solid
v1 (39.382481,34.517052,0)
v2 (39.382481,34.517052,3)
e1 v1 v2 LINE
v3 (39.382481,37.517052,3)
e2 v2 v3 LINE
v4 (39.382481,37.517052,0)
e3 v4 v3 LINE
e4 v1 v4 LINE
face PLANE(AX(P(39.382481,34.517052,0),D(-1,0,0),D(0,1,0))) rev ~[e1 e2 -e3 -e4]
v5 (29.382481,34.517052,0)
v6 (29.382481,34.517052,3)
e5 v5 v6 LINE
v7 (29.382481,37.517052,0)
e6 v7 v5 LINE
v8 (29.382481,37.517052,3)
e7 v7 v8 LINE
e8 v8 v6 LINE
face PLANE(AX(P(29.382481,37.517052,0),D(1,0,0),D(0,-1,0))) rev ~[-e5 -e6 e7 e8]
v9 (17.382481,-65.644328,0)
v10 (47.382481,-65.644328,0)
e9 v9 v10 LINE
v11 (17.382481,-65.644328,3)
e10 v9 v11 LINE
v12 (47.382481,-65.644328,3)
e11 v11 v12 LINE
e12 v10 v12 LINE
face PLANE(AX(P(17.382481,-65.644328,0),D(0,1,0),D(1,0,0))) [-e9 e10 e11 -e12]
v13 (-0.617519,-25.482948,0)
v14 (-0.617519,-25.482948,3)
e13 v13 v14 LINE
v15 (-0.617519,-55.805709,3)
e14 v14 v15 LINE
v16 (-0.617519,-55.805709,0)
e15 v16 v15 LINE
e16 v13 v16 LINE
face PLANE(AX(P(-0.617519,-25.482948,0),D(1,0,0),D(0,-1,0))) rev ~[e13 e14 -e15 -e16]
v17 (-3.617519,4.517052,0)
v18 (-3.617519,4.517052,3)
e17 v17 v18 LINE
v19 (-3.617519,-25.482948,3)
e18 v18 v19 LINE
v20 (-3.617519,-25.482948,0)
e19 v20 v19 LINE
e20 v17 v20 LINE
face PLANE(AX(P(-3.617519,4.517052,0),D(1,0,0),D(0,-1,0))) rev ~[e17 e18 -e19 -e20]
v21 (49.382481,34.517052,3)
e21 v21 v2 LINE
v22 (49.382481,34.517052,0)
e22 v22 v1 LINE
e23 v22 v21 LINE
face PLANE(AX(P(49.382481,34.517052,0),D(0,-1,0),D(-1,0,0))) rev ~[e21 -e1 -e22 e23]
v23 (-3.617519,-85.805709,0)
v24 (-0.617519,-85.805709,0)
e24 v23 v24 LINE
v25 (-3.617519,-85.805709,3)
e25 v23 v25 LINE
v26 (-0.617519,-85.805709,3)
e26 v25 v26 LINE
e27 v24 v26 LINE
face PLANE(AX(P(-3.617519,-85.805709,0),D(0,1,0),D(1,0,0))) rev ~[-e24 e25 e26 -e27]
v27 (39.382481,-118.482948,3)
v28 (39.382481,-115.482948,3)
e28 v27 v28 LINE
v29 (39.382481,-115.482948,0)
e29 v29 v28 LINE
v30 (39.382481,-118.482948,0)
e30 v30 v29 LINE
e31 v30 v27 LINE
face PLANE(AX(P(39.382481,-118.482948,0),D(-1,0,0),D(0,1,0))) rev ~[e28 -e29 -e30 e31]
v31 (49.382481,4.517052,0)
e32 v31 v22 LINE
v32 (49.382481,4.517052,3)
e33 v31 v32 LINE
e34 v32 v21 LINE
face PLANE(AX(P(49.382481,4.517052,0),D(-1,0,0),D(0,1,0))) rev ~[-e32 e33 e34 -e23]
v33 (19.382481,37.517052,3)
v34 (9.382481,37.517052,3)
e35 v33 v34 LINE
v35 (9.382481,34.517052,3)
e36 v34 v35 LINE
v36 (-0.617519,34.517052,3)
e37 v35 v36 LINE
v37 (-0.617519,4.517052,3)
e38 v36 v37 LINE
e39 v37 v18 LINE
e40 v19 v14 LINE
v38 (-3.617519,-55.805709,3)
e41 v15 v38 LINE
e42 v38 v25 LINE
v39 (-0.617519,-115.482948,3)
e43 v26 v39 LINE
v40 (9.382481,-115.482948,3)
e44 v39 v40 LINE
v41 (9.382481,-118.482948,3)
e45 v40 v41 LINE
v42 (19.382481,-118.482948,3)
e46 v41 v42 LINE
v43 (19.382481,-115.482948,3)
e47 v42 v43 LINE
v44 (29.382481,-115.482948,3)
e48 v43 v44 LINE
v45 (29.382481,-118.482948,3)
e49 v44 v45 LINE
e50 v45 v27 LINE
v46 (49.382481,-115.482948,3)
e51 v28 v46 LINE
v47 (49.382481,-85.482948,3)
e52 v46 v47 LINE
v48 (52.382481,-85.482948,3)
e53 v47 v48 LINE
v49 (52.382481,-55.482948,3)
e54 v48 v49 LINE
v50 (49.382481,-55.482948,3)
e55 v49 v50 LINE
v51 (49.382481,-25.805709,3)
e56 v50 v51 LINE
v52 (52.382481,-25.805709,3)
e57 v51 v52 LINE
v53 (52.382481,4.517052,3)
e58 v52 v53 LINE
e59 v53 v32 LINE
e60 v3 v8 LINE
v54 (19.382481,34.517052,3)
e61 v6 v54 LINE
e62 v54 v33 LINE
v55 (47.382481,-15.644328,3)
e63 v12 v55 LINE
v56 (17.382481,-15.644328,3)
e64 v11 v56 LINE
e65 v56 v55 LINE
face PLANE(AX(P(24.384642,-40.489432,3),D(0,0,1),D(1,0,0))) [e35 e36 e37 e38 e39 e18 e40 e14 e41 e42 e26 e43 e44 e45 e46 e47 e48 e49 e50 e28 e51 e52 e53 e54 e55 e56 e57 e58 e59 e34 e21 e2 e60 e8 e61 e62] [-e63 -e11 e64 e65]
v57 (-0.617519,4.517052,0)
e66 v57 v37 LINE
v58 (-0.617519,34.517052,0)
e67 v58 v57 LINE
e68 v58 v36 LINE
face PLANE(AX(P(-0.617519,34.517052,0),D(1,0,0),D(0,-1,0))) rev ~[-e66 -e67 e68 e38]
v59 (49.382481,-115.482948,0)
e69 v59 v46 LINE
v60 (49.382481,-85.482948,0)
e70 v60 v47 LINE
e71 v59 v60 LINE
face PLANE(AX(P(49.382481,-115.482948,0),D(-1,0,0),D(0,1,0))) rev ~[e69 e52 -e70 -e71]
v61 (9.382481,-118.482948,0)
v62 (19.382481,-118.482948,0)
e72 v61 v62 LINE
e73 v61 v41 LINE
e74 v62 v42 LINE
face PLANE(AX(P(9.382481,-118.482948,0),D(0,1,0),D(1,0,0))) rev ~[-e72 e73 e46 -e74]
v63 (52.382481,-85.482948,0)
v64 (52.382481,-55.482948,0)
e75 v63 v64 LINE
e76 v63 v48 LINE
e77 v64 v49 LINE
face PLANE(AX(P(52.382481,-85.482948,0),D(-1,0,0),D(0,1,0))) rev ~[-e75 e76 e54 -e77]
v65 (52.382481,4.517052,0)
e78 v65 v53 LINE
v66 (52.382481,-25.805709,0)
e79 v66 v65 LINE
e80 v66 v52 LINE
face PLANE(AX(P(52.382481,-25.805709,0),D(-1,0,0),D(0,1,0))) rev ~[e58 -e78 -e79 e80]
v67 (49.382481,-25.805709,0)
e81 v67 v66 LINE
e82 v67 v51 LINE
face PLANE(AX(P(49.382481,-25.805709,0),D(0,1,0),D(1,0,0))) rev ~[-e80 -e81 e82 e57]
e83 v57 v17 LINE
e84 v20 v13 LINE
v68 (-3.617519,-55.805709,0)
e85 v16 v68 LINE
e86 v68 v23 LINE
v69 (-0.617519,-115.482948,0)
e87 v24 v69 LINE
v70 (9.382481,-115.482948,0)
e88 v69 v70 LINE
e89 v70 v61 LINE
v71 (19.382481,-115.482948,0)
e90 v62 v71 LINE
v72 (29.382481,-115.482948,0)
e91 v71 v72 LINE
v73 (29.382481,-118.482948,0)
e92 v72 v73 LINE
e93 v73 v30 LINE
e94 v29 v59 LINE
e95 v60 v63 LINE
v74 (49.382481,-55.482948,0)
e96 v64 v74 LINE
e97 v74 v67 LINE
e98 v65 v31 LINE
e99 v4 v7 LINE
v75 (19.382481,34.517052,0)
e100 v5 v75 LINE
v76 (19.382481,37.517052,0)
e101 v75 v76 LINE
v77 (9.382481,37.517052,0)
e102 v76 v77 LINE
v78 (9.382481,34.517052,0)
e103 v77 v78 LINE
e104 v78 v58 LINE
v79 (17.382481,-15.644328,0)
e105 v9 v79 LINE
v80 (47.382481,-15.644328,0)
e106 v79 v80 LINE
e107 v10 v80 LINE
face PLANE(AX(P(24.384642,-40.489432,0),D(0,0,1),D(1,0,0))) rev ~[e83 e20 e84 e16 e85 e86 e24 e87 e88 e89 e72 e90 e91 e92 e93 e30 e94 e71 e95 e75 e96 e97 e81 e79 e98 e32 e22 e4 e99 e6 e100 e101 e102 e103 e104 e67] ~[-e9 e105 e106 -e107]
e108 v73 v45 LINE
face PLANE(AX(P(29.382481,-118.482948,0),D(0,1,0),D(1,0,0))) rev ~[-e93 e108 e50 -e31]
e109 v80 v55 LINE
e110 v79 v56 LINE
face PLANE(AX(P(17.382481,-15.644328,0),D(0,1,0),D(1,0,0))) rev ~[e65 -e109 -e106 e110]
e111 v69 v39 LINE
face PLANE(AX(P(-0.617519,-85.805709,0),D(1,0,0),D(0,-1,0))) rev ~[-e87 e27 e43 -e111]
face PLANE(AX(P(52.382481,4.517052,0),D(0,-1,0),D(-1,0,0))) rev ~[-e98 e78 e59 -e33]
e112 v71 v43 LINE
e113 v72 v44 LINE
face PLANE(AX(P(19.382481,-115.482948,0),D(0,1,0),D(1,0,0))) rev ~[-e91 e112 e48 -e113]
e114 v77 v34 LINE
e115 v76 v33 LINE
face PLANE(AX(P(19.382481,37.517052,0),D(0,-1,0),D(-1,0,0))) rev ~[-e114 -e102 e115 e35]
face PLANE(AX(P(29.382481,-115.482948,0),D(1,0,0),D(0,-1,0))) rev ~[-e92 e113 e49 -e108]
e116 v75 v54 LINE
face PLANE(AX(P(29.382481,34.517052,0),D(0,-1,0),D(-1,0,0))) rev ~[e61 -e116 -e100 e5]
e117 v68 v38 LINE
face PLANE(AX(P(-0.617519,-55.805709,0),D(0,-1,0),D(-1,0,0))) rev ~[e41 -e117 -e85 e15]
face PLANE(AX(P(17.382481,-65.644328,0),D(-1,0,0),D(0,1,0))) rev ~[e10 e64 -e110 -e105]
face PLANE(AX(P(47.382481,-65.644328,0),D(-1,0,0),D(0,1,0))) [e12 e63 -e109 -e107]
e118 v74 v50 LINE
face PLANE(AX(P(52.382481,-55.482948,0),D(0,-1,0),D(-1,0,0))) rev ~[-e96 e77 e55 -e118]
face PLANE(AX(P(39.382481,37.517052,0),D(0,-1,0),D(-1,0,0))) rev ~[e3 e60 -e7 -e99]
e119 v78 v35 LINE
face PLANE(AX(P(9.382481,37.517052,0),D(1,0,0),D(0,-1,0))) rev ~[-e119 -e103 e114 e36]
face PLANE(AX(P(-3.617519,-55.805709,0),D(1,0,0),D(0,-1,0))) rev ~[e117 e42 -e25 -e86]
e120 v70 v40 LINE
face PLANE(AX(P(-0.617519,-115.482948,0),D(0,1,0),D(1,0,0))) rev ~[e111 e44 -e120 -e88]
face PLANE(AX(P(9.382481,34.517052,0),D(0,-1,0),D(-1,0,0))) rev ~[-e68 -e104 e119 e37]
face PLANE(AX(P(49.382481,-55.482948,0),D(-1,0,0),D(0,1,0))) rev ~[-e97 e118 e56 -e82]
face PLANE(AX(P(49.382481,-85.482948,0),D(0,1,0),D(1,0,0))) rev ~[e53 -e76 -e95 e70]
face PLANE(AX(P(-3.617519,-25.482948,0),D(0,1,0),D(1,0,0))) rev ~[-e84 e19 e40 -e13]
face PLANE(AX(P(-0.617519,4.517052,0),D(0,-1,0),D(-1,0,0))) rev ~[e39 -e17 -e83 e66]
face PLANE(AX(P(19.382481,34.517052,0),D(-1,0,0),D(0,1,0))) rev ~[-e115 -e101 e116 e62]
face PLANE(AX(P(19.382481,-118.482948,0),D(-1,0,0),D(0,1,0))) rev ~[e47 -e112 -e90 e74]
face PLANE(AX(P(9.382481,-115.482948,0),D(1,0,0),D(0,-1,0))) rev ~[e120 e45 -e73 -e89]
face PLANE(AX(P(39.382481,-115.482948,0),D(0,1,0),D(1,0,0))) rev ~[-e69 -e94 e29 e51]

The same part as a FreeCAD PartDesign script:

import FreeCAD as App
import Part
import Sketcher
Q = App.Units.Quantity


def add_polygon(sketch, points):
    """Adds a closed chain of lines whose ends are joined by coincident constraints."""
    first, n = sketch.GeometryCount, len(points)
    for a, b in zip(points, points[1:] + points[:1]):
        sketch.addGeometry(Part.LineSegment(App.Vector(*a, 0), App.Vector(*b, 0)), False)
    for i in range(n):
        sketch.addConstraint(Sketcher.Constraint("Coincident", first + i, 2, first + (i + 1) % n, 1))

doc = App.newDocument("Part")
body = doc.addObject("PartDesign::Body", "Body")

sketch1 = doc.addObject("Sketcher::SketchObject", "Sketch")
body.addObject(sketch1)
sketch1.AttachmentSupport = (doc.XY_Plane, [""])
sketch1.MapMode = "FlatFace"
add_polygon(sketch1, [(-0.617519, -25.482948), (-0.617519, -55.805709), (-3.617519, -55.805709), (-3.617519, -85.805709), (-0.617519, -85.805709), (-0.617519, -115.482948), (9.382481, -115.482948), (9.382481, -118.482948), (19.382481, -118.482948), (19.382481, -115.482948), (29.382481, -115.482948), (29.382481, -118.482948), (39.382481, -118.482948), (39.382481, -115.482948), (49.382481, -115.482948), (49.382481, -85.482948), (52.382481, -85.482948), (52.382481, -55.482948), (49.382481, -55.482948), (49.382481, -25.805709), (52.382481, -25.805709), (52.382481, 4.517052), (49.382481, 4.517052), (49.382481, 34.517052), (39.382481, 34.517052), (39.382481, 37.517052), (29.382481, 37.517052), (29.382481, 34.517052), (19.382481, 34.517052), (19.382481, 37.517052), (9.382481, 37.517052), (9.382481, 34.517052), (-0.617519, 34.517052), (-0.617519, 4.517052), (-3.617519, 4.517052), (-3.617519, -25.482948)])
add_polygon(sketch1, [(47.382481, -65.644328), (17.382481, -65.644328), (17.382481, -15.644328), (47.382481, -15.644328)])
sketch1.addConstraint([
    Sketcher.Constraint("Vertical", 0),
    Sketcher.Constraint("Horizontal", 1),
    Sketcher.Constraint("Vertical", 2),
    Sketcher.Constraint("Horizontal", 3),
    Sketcher.Constraint("Vertical", 4),
    Sketcher.Constraint("Horizontal", 5),
    Sketcher.Constraint("Vertical", 6),
    Sketcher.Constraint("Horizontal", 7),
    Sketcher.Constraint("Vertical", 8),
    Sketcher.Constraint("Horizontal", 9),
    Sketcher.Constraint("Vertical", 10),
    Sketcher.Constraint("Horizontal", 11),
    Sketcher.Constraint("Vertical", 12),
    Sketcher.Constraint("Horizontal", 13),
    Sketcher.Constraint("Vertical", 14),
    Sketcher.Constraint("Horizontal", 15),
    Sketcher.Constraint("Vertical", 16),
    Sketcher.Constraint("Horizontal", 17),
    Sketcher.Constraint("Vertical", 18),
    Sketcher.Constraint("Horizontal", 19),
    Sketcher.Constraint("Vertical", 20),
    Sketcher.Constraint("Horizontal", 21),
    Sketcher.Constraint("Vertical", 22),
    Sketcher.Constraint("Horizontal", 23),
    Sketcher.Constraint("Vertical", 24),
    Sketcher.Constraint("Horizontal", 25),
    Sketcher.Constraint("Vertical", 26),
    Sketcher.Constraint("Horizontal", 27),
    Sketcher.Constraint("Vertical", 28),
    Sketcher.Constraint("Horizontal", 29),
    Sketcher.Constraint("Vertical", 30),
    Sketcher.Constraint("Horizontal", 31),
    Sketcher.Constraint("Vertical", 32),
    Sketcher.Constraint("Horizontal", 33),
    Sketcher.Constraint("Vertical", 34),
    Sketcher.Constraint("Horizontal", 35),
    Sketcher.Constraint("Horizontal", 36),
    Sketcher.Constraint("Vertical", 37),
    Sketcher.Constraint("Horizontal", 38),
    Sketcher.Constraint("Vertical", 39),
    Sketcher.Constraint("Horizontal", 5, 2, 8, 2),
    Sketcher.Constraint("Horizontal", 7, 2, 10, 2),
    Sketcher.Constraint("Horizontal", 9, 2, 12, 2),
    Sketcher.Constraint("Horizontal", 23, 2, 26, 2),
    Sketcher.Constraint("Horizontal", 25, 2, 28, 2),
    Sketcher.Constraint("Horizontal", 27, 2, 30, 2),
    Sketcher.Constraint("Horizontal", 21, 2, 32, 2),
    Sketcher.Constraint("Vertical", 0, 2, 3, 2),
    Sketcher.Constraint("Vertical", 14, 2, 17, 2),
    Sketcher.Constraint("Vertical", 16, 2, 19, 2),
    Sketcher.Constraint("Vertical", 18, 2, 21, 2),
    Sketcher.Constraint("Vertical", 12, 2, 23, 2),
    Sketcher.Constraint("Vertical", 10, 2, 25, 2),
    Sketcher.Constraint("Vertical", 8, 2, 27, 2),
    Sketcher.Constraint("Vertical", 6, 2, 29, 2),
    Sketcher.Constraint("Vertical", 4, 2, 31, 2),
    Sketcher.Constraint("Vertical", 2, 2, 33, 2),
    Sketcher.Constraint("Equal", 5, 7),
    Sketcher.Constraint("Equal", 7, 9),
    Sketcher.Constraint("Equal", 9, 11),
    Sketcher.Constraint("Equal", 11, 13),
    Sketcher.Constraint("Equal", 3, 15),
    Sketcher.Constraint("Equal", 38, 2),
    Sketcher.Constraint("Equal", 35, 6),
    Sketcher.Constraint("Equal", 2, 14),
    Sketcher.Constraint("Equal", 14, 16),
    Sketcher.Constraint("Equal", 4, 18),
    Sketcher.Constraint("Equal", 0, 20),
    Sketcher.Constraint("Equal", 16, 22),
    Sketcher.Constraint("Equal", 12, 24),
    Sketcher.Constraint("DistanceX", 1, 2, 1, 1, Q("3 mm")),
    Sketcher.Constraint("DistanceX", 5, 1, 5, 2, Q("10 mm")),
    Sketcher.Constraint("DistanceX", 36, 2, 36, 1, Q("30 mm")),
    Sketcher.Constraint("DistanceY", 37, 1, 37, 2, Q("50 mm")),
    Sketcher.Constraint("DistanceY", 16, 2, 20, 2, Q("60 mm")),
    Sketcher.Constraint("DistanceX", 0, 2, 36, 2, Q("18 mm")),
    Sketcher.Constraint("DistanceY", 0, 2, 0, 1, Q("30.322761 mm")),
    Sketcher.Constraint("DistanceX", 0, 2, -1, 1, Q("0.617519 mm")),
    Sketcher.Constraint("DistanceY", 0, 2, -1, 1, Q("55.805709 mm")),
    Sketcher.Constraint("DistanceY", 36, 2, -1, 1, Q("65.644328 mm")),
])
pad1 = doc.addObject("PartDesign::Pad", "Pad")
body.addObject(pad1)
pad1.Profile = sketch1
pad1.Length = 3

doc.recompute()
